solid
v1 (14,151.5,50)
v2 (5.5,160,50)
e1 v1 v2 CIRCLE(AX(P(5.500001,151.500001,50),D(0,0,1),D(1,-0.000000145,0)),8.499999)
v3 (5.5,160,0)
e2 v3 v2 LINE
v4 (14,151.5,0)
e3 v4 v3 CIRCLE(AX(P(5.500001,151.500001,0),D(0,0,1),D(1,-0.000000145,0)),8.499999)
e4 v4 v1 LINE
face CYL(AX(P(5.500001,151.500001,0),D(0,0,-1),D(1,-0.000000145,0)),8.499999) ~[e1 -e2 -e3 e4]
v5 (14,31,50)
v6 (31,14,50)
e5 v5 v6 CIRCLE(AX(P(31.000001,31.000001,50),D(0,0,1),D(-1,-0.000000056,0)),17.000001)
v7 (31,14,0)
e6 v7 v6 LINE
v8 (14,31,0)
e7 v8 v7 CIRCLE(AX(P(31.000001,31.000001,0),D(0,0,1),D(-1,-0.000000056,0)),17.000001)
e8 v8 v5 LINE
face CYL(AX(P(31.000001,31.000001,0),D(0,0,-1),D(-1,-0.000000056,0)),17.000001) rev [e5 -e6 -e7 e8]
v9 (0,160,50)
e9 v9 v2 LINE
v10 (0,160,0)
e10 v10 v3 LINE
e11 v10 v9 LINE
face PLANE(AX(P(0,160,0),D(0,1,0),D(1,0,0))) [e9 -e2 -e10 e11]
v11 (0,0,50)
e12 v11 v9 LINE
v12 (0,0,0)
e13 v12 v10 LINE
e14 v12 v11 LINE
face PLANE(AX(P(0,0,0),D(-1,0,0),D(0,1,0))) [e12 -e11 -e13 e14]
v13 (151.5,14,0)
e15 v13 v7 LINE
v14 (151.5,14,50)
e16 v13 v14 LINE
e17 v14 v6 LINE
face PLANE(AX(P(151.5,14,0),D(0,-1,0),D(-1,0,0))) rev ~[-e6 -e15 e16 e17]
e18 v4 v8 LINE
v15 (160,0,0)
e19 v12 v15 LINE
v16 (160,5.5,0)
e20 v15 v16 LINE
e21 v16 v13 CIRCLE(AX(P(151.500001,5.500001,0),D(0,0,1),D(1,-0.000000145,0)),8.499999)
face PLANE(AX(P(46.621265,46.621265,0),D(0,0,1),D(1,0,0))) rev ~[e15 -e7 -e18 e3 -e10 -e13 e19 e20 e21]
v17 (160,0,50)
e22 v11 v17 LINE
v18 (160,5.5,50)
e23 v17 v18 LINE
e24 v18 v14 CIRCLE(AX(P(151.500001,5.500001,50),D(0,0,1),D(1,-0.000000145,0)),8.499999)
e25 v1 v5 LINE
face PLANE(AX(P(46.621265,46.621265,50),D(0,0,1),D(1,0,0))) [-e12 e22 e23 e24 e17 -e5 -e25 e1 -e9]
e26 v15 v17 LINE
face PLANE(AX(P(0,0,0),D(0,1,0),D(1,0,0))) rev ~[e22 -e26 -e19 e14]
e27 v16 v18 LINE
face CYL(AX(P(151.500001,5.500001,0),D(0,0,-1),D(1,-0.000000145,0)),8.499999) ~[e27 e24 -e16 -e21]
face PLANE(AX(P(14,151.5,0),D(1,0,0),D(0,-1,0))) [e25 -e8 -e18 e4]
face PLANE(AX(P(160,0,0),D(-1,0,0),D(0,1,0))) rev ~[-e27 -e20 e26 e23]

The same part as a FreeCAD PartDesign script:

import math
import FreeCAD as App
import Part
import Sketcher
Q = App.Units.Quantity

doc = App.newDocument("Part")
body = doc.addObject("PartDesign::Body", "Body")

sketch1 = body.newObject("Sketcher::SketchObject", "Sketch")
sketch1.AttachmentSupport = (doc.getObject("XY_Plane"), [""])
sketch1.MapMode = "FlatFace"
sketch1.addGeometry([
    Part.LineSegment(App.Vector(0, 0, 0), App.Vector(160, 0, 0)),
    Part.LineSegment(App.Vector(160, 0, 0), App.Vector(160, 6, 0)),
    Part.ArcOfCircle(Part.Circle(App.Vector(152, 6, 0), App.Vector(0, 0, 1), 8), math.radians(0), math.radians(90)),
    Part.LineSegment(App.Vector(152, 14, 0), App.Vector(31, 14, 0)),
    Part.ArcOfCircle(Part.Circle(App.Vector(31, 31, 0), App.Vector(0, 0, 1), 17), math.radians(-180), math.radians(-90)),
    Part.LineSegment(App.Vector(14, 31, 0), App.Vector(14, 152, 0)),
    Part.ArcOfCircle(Part.Circle(App.Vector(6, 152, 0), App.Vector(0, 0, 1), 8), math.radians(0), math.radians(90)),
    Part.LineSegment(App.Vector(6, 160, 0), App.Vector(0, 160, 0)),
    Part.LineSegment(App.Vector(0, 160, 0), App.Vector(0, 0, 0)),
], False)
sketch1.addConstraint([
    Sketcher.Constraint("Coincident", 0, 2, 1, 1),
    Sketcher.Constraint("Tangent", 1, 2, 2, 1),
    Sketcher.Constraint("Tangent", 2, 2, 3, 1),
    Sketcher.Constraint("Tangent", 3, 2, 4, 2),
    Sketcher.Constraint("Tangent", 4, 1, 5, 1),
    Sketcher.Constraint("Tangent", 5, 2, 6, 1),
    Sketcher.Constraint("Tangent", 6, 2, 7, 1),
    Sketcher.Constraint("Coincident", 7, 2, 8, 1),
    Sketcher.Constraint("Coincident", 8, 2, 0, 1),
    Sketcher.Constraint("Horizontal", 0),
    Sketcher.Constraint("Vertical", 1),
    Sketcher.Constraint("Horizontal", 3),
    Sketcher.Constraint("Vertical", 5),
    Sketcher.Constraint("Horizontal", 7),
    Sketcher.Constraint("Vertical", 8),
    Sketcher.Constraint("Coincident", 8, 2, -1, 1),
    Sketcher.Constraint("Equal", 2, 6),
    Sketcher.Constraint("Equal", 7, 1),
    Sketcher.Constraint("Equal", 3, 5),
    Sketcher.Constraint("Radius", 4, Q("17.000001 mm")),
    Sketcher.Constraint("Radius", 2, Q("8.499999 mm")),
    Sketcher.Constraint("DistanceX", 0, 1, 0, 2, Q("160 mm")),
    Sketcher.Constraint("DistanceX", 3, 2, 3, 1, Q("120.5 mm")),
])
pad1 = body.newObject("PartDesign::Pad", "Pad")
pad1.Profile = sketch1
pad1.Length = 50

doc.recompute()
